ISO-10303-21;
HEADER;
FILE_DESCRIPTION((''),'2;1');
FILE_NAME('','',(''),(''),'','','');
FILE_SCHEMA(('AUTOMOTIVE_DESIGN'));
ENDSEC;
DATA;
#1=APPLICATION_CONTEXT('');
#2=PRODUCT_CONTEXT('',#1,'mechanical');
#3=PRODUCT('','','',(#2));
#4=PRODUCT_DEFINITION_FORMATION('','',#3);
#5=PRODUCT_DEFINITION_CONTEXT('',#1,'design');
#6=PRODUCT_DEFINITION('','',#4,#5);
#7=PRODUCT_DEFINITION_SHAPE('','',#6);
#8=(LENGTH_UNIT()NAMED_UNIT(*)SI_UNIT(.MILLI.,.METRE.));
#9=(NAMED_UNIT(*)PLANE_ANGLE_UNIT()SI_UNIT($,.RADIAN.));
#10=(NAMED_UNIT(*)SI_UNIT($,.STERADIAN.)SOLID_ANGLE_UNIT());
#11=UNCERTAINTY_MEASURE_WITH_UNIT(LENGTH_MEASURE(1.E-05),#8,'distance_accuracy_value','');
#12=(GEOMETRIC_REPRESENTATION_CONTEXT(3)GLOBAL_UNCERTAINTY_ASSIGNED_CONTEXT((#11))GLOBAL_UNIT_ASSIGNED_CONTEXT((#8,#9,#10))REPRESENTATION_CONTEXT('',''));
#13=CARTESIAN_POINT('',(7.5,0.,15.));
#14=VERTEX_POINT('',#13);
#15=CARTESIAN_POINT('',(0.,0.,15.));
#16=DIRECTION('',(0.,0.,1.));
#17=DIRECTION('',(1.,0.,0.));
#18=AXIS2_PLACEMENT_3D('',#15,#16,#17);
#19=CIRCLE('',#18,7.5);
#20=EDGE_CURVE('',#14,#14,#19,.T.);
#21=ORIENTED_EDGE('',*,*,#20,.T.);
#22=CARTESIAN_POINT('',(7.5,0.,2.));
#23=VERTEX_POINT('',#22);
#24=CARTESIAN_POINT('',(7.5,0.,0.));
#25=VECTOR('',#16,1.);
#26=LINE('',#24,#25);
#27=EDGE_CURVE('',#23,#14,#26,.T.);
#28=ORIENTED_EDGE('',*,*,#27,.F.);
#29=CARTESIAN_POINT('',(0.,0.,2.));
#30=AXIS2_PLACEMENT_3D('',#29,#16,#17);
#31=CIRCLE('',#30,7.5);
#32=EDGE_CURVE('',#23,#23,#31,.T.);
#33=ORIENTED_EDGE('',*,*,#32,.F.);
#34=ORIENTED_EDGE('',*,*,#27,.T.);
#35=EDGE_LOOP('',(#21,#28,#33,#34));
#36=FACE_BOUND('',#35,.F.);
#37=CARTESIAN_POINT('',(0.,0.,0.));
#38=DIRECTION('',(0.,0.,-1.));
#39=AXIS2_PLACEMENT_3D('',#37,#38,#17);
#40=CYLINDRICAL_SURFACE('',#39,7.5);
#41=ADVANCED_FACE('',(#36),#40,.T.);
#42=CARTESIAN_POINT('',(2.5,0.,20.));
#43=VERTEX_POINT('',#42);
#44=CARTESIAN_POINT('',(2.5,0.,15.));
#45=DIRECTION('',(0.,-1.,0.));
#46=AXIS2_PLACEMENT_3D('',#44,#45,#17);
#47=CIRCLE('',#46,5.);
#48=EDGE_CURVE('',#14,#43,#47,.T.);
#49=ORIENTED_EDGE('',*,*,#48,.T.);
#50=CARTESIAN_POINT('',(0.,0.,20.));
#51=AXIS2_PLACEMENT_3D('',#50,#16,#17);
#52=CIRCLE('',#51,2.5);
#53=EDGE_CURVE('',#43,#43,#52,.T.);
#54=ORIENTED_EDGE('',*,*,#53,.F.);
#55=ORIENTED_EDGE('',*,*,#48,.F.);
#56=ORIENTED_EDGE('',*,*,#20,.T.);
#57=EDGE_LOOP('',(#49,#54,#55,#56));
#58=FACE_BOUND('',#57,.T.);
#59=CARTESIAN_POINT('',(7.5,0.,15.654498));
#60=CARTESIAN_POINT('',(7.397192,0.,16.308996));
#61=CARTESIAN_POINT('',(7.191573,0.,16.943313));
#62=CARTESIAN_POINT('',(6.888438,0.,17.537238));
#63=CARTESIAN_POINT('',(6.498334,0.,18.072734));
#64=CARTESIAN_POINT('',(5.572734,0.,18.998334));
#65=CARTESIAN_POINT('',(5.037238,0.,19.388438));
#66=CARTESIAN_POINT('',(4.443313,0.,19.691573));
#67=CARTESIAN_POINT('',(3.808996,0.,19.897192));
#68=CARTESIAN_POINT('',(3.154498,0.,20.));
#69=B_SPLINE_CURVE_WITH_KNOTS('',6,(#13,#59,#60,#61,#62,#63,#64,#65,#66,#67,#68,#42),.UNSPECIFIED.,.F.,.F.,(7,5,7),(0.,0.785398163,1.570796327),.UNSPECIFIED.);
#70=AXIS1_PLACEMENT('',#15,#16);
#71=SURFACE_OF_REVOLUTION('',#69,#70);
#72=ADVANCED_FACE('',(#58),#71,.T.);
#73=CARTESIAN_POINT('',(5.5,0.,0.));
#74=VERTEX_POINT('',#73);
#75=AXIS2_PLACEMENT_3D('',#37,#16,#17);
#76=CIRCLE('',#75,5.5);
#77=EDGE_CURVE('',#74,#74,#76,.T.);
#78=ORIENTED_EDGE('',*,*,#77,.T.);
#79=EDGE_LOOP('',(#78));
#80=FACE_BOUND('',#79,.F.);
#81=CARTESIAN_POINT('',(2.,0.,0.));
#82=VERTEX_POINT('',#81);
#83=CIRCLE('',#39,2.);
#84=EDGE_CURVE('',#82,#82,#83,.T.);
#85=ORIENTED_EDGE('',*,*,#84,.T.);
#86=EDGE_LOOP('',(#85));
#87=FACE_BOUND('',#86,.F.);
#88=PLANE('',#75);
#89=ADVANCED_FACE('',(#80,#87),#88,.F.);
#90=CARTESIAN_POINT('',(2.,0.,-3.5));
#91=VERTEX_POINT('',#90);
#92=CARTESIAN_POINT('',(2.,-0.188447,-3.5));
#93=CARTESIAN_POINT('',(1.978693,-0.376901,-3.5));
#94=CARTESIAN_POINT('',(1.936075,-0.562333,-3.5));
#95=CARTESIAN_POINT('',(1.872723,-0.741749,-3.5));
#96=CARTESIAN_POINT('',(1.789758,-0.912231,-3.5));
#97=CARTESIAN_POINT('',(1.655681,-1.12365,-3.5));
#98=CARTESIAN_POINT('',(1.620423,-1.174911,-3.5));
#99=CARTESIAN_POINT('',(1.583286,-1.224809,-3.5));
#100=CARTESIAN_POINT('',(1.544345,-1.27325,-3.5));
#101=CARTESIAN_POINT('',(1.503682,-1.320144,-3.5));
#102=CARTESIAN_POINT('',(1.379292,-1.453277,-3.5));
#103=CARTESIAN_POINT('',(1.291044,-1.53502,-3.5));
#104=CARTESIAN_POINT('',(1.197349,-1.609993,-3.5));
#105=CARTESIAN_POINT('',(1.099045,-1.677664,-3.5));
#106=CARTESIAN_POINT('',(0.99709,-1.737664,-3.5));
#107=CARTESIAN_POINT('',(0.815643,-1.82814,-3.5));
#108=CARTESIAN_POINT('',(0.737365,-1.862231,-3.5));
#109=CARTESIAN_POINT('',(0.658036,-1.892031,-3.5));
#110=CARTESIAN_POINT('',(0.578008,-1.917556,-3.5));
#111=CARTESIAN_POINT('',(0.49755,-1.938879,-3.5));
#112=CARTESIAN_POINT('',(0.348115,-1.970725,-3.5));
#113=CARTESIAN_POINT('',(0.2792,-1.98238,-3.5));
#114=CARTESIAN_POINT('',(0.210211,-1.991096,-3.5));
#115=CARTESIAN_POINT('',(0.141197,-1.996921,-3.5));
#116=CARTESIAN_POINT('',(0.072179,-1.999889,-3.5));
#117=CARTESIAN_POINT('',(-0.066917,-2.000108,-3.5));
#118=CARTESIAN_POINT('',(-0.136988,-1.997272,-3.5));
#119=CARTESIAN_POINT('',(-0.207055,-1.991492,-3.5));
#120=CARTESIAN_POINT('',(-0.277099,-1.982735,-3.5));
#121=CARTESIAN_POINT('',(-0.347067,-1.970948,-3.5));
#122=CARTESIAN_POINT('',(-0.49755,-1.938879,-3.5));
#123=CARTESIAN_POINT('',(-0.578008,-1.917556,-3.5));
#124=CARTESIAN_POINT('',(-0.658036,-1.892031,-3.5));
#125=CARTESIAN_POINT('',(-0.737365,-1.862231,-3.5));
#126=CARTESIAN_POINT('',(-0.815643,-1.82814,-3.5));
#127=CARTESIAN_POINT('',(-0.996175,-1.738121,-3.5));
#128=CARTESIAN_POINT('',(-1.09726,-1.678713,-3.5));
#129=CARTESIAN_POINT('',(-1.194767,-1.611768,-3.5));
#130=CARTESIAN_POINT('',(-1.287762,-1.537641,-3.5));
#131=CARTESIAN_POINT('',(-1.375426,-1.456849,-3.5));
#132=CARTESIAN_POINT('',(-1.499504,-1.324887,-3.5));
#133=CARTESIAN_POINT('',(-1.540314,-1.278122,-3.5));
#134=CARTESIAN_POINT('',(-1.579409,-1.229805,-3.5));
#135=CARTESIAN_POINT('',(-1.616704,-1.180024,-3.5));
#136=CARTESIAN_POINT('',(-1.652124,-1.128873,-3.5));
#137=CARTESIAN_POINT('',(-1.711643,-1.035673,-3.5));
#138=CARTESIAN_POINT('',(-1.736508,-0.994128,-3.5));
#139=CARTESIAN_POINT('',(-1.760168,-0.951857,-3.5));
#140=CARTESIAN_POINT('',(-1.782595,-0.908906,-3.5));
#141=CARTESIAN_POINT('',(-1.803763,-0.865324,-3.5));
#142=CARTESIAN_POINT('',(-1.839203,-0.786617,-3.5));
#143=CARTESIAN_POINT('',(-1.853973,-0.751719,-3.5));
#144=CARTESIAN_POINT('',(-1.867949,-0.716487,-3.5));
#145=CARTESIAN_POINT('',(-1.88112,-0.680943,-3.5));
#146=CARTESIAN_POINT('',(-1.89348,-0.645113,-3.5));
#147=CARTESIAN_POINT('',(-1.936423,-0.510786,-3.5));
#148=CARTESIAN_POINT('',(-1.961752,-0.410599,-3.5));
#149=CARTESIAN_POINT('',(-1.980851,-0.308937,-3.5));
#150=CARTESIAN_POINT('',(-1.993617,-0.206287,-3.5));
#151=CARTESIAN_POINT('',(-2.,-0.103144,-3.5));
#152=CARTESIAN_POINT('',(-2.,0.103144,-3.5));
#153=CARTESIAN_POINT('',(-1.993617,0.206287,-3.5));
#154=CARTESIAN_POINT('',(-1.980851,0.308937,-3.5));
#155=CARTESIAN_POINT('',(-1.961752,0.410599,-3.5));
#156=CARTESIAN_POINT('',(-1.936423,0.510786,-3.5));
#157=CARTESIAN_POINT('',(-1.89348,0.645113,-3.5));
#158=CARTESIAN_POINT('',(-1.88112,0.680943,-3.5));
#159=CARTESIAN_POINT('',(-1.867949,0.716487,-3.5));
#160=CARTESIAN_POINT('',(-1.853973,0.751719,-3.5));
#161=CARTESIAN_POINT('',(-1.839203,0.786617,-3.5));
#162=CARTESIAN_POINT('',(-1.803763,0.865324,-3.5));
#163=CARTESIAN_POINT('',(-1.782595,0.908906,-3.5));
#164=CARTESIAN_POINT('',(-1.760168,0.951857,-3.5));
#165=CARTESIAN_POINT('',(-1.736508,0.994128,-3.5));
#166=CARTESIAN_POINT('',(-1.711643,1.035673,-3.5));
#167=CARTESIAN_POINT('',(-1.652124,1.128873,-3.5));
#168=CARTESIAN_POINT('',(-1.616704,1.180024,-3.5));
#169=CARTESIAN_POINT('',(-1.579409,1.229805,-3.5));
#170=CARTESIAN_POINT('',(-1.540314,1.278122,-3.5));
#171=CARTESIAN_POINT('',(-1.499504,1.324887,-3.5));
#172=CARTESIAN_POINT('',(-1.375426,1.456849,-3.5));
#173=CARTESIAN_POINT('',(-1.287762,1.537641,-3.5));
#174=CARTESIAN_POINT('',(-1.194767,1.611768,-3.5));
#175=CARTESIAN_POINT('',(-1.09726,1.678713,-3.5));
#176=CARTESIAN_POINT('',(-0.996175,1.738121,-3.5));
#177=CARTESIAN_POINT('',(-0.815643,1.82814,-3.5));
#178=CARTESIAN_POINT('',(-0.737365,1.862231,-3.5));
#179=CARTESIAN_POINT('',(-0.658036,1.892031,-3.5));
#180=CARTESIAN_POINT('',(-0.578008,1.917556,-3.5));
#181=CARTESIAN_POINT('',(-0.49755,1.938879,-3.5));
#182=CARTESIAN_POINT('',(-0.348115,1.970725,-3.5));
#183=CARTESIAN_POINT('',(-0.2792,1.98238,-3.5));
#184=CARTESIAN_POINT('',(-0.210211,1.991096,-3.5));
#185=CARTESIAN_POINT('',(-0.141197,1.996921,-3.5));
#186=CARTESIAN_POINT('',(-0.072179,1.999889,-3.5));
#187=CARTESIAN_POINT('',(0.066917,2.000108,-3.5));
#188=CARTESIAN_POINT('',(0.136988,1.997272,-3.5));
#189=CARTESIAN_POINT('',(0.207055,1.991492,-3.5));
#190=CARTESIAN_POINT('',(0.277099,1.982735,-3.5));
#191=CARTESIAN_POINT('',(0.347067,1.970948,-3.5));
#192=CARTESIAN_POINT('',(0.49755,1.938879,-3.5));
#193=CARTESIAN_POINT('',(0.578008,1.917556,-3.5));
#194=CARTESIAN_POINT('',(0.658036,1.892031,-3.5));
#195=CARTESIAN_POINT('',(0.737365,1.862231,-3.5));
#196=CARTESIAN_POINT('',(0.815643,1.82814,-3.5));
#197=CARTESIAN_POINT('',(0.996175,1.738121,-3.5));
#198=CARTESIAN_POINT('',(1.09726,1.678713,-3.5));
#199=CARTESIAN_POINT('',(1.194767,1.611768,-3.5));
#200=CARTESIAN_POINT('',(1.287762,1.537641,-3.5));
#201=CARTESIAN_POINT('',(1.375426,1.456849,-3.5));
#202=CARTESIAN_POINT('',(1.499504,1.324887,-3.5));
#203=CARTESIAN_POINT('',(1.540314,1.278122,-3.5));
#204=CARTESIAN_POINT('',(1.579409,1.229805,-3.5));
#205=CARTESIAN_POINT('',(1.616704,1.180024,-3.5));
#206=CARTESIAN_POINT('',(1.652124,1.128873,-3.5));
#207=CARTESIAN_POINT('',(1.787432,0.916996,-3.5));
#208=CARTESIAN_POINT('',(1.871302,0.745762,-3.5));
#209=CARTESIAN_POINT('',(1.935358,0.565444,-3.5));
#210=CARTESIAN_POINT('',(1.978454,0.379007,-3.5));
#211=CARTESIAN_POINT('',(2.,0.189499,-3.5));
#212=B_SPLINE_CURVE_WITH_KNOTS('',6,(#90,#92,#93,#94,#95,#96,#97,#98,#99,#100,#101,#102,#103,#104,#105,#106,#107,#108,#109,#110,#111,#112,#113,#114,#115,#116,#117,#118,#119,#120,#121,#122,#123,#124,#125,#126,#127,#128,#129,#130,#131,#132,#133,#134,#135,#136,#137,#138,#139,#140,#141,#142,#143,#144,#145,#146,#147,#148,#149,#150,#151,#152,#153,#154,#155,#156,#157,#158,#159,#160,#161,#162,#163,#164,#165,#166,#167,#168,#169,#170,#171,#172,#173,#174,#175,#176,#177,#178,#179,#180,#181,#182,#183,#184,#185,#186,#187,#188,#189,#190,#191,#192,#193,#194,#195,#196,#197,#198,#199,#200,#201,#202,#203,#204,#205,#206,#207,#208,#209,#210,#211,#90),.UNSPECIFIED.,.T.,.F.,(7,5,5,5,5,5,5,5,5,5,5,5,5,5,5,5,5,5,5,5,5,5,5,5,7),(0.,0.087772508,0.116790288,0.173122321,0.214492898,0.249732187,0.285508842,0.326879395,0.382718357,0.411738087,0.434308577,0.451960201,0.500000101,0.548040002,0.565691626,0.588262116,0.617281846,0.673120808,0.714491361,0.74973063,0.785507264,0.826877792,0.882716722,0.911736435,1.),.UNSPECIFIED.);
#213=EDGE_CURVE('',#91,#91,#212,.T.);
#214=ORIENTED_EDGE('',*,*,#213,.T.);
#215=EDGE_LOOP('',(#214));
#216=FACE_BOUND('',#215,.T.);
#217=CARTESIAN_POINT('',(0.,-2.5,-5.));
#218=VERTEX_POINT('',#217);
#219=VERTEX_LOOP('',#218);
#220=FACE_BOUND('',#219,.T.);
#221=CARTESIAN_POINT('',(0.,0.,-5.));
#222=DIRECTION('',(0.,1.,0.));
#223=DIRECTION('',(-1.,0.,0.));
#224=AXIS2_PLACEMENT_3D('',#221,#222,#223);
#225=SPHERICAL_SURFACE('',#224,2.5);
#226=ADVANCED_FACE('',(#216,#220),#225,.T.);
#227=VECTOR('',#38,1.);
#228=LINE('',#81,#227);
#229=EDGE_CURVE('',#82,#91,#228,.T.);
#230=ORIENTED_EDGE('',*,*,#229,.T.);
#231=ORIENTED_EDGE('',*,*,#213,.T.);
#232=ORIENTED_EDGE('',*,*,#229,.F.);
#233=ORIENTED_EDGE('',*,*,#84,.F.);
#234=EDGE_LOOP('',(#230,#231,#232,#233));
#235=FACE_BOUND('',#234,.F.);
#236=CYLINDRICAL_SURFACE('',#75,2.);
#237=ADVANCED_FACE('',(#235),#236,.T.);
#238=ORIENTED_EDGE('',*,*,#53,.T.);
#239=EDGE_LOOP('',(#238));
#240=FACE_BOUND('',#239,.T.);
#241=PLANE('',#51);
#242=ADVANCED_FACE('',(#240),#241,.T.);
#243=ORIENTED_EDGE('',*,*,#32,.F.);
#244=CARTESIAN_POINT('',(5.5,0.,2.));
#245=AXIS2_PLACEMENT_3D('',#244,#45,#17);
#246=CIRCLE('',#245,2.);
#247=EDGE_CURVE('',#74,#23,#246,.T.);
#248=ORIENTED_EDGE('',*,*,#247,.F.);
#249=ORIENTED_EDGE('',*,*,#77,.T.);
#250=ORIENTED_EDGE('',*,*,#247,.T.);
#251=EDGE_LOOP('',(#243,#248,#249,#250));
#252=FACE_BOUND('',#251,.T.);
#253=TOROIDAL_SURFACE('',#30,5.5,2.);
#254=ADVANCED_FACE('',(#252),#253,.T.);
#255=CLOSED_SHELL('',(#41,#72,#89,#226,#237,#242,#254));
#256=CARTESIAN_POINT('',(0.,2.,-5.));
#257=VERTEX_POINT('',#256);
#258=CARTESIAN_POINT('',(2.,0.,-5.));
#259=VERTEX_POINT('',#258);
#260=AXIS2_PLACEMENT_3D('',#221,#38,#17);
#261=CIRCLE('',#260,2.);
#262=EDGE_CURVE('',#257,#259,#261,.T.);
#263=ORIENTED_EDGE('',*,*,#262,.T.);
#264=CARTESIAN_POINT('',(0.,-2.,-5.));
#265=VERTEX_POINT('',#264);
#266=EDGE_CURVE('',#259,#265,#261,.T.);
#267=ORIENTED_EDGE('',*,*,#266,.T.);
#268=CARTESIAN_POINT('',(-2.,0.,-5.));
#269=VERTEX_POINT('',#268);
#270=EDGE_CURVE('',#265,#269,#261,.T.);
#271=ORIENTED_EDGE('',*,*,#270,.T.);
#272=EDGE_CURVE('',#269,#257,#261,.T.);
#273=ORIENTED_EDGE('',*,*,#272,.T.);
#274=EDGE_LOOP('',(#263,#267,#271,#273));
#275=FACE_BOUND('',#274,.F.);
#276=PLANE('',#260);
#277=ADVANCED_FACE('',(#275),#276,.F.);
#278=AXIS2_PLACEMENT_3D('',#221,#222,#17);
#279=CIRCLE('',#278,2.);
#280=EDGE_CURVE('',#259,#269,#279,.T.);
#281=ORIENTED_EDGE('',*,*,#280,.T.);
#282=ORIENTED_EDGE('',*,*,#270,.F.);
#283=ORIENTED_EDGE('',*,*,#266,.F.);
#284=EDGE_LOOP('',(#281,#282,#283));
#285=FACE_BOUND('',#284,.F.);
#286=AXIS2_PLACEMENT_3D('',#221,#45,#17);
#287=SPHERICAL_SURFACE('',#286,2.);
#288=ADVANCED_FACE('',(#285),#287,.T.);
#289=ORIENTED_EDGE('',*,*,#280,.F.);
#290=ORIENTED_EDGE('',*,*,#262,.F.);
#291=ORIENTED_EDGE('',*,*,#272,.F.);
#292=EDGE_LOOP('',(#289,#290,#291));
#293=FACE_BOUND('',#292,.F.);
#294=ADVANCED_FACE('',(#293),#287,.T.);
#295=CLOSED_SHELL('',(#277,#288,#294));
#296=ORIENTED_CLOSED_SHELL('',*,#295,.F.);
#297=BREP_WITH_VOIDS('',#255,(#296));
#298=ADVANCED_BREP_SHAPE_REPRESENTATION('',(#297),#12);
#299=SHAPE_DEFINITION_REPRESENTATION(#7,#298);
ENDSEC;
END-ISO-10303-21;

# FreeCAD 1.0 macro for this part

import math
import FreeCAD as App
import Part
import Sketcher


def edges_at(feature, points):
    """Names of the edges that pass closest to the given points."""
    edges = feature.Shape.Edges
    near = lambda p: min(range(len(edges)), key=lambda i: edges[i].distToShape(Part.Vertex(*p))[0])
    return sorted({f"Edge{near(p) + 1}" for p in points})

doc = App.newDocument("Part")
body = doc.addObject("PartDesign::Body", "Body")

# Sketch on XY plane
sketch1 = body.newObject("Sketcher::SketchObject", "Sketch")
sketch1.AttachmentSupport = (doc.getObject("XY_Plane"), [""])
sketch1.MapMode = "FlatFace"
sketch1.addGeometry(Part.Circle(App.Vector(0, 0, 0), App.Vector(0, 0, 1), 7.5), False)
sketch1.addConstraint(Sketcher.Constraint("Coincident", 0, 3, -1, 1))
sketch1.addConstraint(Sketcher.Constraint("Diameter", 0, 15.0))
pad1 = body.newObject("PartDesign::Pad", "Pad")
pad1.Profile = sketch1
pad1.Length = 20
doc.recompute()

fillet = body.newObject("PartDesign::Fillet", "Fillet")
fillet.Base = (pad1, edges_at(pad1, [(-7.5, 0, 20)]))
fillet.Radius = 5

# Sketch on XY plane
sketch2 = body.newObject("Sketcher::SketchObject", "Sketch001")
sketch2.AttachmentSupport = (doc.getObject("XY_Plane"), [""])
sketch2.MapMode = "FlatFace"
sketch2.addGeometry(Part.Circle(App.Vector(0, 0, 0), App.Vector(0, 0, 1), 2), False)
sketch2.addConstraint(Sketcher.Constraint("Coincident", 0, 3, -1, 1))
sketch2.addConstraint(Sketcher.Constraint("Diameter", 0, 4.0))
pad2 = body.newObject("PartDesign::Pad", "Pad001")
pad2.Profile = sketch2
pad2.Length = 5
pad2.Reversed = True

# Sketch on XY plane
sketch3 = body.newObject("Sketcher::SketchObject", "Sketch002")
sketch3.AttachmentSupport = (doc.getObject("XY_Plane"), [""])
sketch3.MapMode = "FlatFace"
sketch3.AttachmentOffset = App.Placement(App.Vector(0, 0, -5), App.Rotation())
sketch3.addGeometry(Part.ArcOfCircle(Part.Circle(App.Vector(0, 0, 0), App.Vector(0, 0, 1), 2.5), math.radians(90), math.radians(270)), False)
sketch3.addGeometry(Part.LineSegment(App.Vector(0, 2.5, 0), App.Vector(0, 2, 0)), False)
sketch3.addGeometry(Part.ArcOfCircle(Part.Circle(App.Vector(0, 0, 0), App.Vector(0, 0, 1), 2), math.radians(0), math.radians(90)), False)
sketch3.addGeometry(Part.ArcOfCircle(Part.Circle(App.Vector(0, 0, 0), App.Vector(0, 0, 1), 2), math.radians(-90), math.radians(0)), False)
sketch3.addGeometry(Part.LineSegment(App.Vector(0, -2, 0), App.Vector(0, -2.5, 0)), False)
sketch3.addConstraint(Sketcher.Constraint("Coincident", 0, 1, 1, 1))
sketch3.addConstraint(Sketcher.Constraint("Coincident", 1, 2, 2, 2))
sketch3.addConstraint(Sketcher.Constraint("Tangent", 2, 1, 3, 2))
sketch3.addConstraint(Sketcher.Constraint("Coincident", 3, 1, 4, 1))
sketch3.addConstraint(Sketcher.Constraint("Coincident", 4, 2, 0, 2))
sketch3.addConstraint(Sketcher.Constraint("Vertical", 1))
sketch3.addConstraint(Sketcher.Constraint("Vertical", 4))
sketch3.addConstraint(Sketcher.Constraint("Coincident", 0, 3, -1, 1))
sketch3.addConstraint(Sketcher.Constraint("Coincident", 2, 3, -1, 1))
sketch3.addConstraint(Sketcher.Constraint("Equal", 2, 3))
sketch3.addConstraint(Sketcher.Constraint("PointOnObject", 0, 1, -2))
sketch3.addConstraint(Sketcher.Constraint("PointOnObject", 2, 1, -1))
sketch3.addConstraint(Sketcher.Constraint("PointOnObject", 3, 1, -2))
sketch3.addConstraint(Sketcher.Constraint("Radius", 2, 2.0))
sketch3.addConstraint(Sketcher.Constraint("Radius", 0, 2.5))
revolution = body.newObject("PartDesign::Revolution", "Revolution")
revolution.Profile = sketch3
revolution.ReferenceAxis = (sketch3, ["V_Axis"])
revolution.Angle = 360
doc.recompute()

fillet2 = body.newObject("PartDesign::Fillet", "Fillet001")
fillet2.Base = (revolution, edges_at(revolution, [(-7.5, 0, 0)]))
fillet2.Radius = 2

doc.recompute()
